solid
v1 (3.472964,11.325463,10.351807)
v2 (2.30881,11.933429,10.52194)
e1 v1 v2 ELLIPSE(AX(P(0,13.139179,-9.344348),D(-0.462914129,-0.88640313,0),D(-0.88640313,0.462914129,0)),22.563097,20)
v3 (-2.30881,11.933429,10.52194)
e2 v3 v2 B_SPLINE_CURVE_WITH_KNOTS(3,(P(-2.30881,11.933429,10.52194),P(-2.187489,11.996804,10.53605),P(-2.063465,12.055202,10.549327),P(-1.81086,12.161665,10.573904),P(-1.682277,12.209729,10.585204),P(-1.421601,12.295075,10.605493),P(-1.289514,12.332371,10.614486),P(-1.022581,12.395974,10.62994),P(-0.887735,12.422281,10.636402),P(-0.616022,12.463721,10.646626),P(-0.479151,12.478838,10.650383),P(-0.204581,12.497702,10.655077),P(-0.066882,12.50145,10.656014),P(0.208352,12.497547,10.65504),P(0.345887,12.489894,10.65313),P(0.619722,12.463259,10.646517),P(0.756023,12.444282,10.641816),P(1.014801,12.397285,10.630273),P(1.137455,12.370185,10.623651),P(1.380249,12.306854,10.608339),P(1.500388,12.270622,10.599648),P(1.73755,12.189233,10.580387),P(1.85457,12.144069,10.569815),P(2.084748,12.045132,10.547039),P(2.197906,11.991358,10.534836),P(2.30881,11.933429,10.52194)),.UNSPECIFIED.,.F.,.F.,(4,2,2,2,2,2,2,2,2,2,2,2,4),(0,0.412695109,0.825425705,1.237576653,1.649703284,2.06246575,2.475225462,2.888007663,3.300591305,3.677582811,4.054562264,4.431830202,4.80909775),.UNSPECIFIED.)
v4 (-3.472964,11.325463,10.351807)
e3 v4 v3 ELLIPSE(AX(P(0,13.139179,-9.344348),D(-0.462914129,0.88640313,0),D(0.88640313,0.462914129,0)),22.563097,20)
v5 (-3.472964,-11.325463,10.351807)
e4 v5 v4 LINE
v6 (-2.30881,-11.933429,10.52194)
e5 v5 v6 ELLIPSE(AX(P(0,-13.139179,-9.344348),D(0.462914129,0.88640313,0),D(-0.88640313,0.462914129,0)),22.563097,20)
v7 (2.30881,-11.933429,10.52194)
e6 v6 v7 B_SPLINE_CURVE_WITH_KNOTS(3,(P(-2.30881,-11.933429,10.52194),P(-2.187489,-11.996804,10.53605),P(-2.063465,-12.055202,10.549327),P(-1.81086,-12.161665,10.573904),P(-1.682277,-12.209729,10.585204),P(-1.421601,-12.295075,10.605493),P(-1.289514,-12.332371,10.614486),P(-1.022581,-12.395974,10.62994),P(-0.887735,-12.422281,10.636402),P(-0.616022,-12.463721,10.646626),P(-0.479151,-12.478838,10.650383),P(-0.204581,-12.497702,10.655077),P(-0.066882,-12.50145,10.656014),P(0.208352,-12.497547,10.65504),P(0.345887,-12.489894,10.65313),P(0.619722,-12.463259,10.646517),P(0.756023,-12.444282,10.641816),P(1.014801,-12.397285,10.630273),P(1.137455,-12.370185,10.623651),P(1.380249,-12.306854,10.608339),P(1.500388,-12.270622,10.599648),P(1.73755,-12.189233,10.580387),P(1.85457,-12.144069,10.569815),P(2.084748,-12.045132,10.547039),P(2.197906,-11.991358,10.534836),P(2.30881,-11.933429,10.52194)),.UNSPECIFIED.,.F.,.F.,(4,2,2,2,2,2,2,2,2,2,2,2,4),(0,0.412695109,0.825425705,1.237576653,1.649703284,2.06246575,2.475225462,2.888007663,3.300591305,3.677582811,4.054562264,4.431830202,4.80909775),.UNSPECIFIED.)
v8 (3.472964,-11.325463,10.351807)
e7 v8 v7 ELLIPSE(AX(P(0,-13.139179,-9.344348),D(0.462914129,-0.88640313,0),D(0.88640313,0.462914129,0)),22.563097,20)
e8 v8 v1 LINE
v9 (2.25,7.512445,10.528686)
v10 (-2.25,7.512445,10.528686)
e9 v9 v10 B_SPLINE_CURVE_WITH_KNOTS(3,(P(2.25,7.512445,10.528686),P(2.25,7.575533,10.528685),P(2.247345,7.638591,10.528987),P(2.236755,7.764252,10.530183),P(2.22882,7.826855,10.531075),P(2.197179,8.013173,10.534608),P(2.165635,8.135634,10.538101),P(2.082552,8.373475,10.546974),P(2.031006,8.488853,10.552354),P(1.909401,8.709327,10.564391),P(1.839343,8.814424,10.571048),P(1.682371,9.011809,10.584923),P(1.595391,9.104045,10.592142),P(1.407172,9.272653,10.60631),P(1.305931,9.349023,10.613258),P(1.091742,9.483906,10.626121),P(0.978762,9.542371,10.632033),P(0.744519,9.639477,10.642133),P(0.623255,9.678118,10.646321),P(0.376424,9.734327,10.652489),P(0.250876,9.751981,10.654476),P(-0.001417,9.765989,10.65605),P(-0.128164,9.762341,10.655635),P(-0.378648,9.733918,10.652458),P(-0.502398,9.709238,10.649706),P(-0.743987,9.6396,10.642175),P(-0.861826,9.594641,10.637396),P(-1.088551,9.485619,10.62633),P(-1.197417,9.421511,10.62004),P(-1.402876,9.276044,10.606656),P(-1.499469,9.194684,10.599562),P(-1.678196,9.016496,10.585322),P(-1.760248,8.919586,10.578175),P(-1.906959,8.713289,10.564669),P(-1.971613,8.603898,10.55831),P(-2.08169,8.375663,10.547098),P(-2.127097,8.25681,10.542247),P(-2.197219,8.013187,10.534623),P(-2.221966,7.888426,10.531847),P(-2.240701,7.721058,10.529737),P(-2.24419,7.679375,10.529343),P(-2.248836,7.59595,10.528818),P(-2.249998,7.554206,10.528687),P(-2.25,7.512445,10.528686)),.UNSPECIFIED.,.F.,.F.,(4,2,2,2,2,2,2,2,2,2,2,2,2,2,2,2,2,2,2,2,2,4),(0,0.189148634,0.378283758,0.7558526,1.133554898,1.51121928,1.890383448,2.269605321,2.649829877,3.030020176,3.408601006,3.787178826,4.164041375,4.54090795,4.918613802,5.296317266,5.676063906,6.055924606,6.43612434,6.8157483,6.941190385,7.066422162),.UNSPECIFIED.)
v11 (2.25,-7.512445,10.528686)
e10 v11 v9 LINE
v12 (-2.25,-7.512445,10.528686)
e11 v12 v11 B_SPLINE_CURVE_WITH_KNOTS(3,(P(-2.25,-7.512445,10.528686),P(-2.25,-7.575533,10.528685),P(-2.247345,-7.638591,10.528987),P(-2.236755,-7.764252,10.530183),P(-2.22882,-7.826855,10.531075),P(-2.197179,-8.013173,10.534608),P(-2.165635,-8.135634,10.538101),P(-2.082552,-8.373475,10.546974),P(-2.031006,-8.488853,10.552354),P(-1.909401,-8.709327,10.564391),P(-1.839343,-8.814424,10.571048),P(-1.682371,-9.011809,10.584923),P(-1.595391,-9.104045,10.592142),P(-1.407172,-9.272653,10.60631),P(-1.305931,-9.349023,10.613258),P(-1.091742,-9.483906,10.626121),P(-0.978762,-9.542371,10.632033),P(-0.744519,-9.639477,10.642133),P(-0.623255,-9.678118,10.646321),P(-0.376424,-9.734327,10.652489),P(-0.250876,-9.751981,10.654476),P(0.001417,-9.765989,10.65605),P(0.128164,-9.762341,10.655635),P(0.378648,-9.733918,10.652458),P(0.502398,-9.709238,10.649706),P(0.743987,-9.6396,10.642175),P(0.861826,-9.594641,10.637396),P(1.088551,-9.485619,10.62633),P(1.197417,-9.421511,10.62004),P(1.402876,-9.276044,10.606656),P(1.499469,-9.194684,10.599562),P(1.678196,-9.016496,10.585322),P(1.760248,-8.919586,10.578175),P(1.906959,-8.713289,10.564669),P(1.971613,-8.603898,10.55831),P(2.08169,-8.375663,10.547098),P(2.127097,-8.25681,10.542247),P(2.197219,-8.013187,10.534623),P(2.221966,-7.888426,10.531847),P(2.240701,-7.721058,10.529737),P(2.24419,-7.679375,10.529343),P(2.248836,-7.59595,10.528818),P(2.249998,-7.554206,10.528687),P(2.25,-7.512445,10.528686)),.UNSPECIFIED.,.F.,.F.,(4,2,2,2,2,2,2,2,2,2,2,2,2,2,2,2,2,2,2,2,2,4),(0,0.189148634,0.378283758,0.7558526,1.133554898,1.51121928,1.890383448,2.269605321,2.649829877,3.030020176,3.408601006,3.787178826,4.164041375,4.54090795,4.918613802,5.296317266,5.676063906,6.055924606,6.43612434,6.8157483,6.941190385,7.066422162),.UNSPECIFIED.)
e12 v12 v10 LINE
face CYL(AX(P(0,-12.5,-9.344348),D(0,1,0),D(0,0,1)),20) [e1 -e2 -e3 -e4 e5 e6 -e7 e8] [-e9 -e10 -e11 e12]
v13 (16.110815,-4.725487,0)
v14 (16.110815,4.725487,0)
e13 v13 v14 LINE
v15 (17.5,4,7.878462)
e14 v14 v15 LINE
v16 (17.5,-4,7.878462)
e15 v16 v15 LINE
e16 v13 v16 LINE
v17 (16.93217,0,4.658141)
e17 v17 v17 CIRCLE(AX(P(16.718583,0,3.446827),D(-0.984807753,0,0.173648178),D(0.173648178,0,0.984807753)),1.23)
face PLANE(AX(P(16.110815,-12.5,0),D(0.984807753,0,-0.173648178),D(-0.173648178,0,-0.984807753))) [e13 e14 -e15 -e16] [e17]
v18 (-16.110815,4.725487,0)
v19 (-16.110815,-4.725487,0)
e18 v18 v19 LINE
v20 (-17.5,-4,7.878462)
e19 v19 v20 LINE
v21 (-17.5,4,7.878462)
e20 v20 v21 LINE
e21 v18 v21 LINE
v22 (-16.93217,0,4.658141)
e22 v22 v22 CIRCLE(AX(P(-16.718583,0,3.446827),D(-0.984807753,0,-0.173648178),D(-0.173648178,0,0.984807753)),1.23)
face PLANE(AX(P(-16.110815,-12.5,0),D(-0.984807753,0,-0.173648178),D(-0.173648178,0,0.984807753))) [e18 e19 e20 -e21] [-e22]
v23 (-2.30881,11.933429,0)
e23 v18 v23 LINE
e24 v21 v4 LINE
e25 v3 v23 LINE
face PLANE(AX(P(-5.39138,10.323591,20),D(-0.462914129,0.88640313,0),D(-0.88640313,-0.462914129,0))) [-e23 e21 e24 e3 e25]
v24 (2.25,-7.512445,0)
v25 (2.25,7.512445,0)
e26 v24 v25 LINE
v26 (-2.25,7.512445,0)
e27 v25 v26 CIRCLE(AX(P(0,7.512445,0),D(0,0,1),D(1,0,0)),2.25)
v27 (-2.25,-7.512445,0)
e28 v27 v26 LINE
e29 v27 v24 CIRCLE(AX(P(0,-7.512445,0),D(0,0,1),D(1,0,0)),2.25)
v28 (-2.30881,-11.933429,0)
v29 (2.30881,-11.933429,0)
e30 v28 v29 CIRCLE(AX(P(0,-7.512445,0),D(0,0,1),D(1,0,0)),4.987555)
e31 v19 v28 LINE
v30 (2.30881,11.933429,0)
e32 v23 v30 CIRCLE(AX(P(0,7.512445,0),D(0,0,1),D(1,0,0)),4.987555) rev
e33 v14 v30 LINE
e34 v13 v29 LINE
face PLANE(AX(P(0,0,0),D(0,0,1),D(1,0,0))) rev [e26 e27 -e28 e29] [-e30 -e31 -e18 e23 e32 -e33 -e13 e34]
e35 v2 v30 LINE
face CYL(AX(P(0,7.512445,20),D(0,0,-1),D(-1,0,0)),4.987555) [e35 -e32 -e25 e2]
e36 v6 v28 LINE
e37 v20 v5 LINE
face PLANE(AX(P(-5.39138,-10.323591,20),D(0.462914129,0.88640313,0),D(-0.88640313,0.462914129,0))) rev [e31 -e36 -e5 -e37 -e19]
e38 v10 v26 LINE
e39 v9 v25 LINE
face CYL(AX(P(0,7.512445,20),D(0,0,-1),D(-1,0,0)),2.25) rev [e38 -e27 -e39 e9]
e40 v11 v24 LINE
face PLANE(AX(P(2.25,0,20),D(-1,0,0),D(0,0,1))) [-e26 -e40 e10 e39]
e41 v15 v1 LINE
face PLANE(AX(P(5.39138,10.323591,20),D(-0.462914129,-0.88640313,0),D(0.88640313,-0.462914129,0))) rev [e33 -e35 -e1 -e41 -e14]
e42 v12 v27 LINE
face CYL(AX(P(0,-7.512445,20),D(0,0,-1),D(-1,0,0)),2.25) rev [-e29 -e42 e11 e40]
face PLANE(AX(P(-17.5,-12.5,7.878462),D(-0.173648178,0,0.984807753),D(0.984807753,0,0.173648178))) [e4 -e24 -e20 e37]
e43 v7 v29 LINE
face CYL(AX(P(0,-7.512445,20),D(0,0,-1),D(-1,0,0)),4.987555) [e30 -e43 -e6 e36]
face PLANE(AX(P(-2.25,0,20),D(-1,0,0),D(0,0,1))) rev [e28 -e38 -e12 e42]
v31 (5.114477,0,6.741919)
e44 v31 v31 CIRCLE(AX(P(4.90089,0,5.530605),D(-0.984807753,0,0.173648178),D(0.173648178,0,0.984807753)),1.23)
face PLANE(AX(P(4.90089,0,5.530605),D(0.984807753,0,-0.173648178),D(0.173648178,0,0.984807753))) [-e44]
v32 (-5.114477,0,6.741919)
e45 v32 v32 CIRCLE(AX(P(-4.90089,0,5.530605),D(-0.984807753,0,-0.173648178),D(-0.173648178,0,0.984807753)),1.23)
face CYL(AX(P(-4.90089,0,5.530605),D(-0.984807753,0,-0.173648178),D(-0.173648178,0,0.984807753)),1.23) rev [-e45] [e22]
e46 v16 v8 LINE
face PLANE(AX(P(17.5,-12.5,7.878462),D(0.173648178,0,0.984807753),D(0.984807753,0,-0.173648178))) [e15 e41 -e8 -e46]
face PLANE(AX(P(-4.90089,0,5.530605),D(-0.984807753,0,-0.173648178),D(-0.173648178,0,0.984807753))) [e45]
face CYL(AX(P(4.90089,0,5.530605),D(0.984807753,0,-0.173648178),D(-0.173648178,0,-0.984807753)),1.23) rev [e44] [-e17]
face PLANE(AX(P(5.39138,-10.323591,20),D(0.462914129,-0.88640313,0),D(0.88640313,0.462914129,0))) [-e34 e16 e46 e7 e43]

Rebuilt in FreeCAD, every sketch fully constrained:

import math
import FreeCAD as App
import Part
import Sketcher
from FreeCAD import Vector
Q = App.Units.Quantity


def add_polygon(sketch, points):
    """Adds a closed chain of lines whose ends are joined by coincident constraints."""
    first, n = sketch.GeometryCount, len(points)
    for a, b in zip(points, points[1:] + points[:1]):
        sketch.addGeometry(Part.LineSegment(App.Vector(*a, 0), App.Vector(*b, 0)), False)
    for i in range(n):
        sketch.addConstraint(Sketcher.Constraint("Coincident", first + i, 2, first + (i + 1) % n, 1))

doc = App.newDocument("Part")
params = doc.addObject("Spreadsheet::Sheet", "Params")
for row, (alias, value) in enumerate([
    ("sketch1_height", "8 mm"),
    ("sketch1_radius", "2.25 mm"),
    ("pad1_length", "20 mm"),
    ("sketch2_radius", "20 mm"),
    ("sketch2_length", "8 mm"),
    ("sketch3_diameter", "2.46 mm"),
    ("pocket2_length", "12 mm"),
], start=1):
    params.set(f"A{row}", alias)
    params.set(f"B{row}", "=" + value)
    params.setAlias(f"B{row}", alias)

body = doc.addObject("PartDesign::Body", "Body")

# Sketch on XY plane
sketch1 = body.newObject("Sketcher::SketchObject", "Sketch")
sketch1.AttachmentSupport = (doc.getObject("XY_Plane"), [""])
sketch1.MapMode = "FlatFace"
sketch1.addGeometry(Part.LineSegment(Vector(-2.30881, 11.933429, 0), Vector(-17.5, 4, 0)), False)
sketch1.addGeometry(Part.LineSegment(Vector(-17.5, 4, 0), Vector(-17.5, -4, 0)), False)
sketch1.addGeometry(Part.LineSegment(Vector(-17.5, -4, 0), Vector(-2.30881, -11.933429, 0)), False)
sketch1.addGeometry(Part.ArcOfCircle(Part.Circle(Vector(0, -7.512445, 0), Vector(0, 0, 1), 4.987555), math.radians(-117.575311), math.radians(-62.424689)), False)
sketch1.addGeometry(Part.LineSegment(Vector(2.30881, -11.933429, 0), Vector(17.5, -4, 0)), False)
sketch1.addGeometry(Part.LineSegment(Vector(17.5, -4, 0), Vector(17.5, 4, 0)), False)
sketch1.addGeometry(Part.LineSegment(Vector(17.5, 4, 0), Vector(2.30881, 11.933429, 0)), False)
sketch1.addGeometry(Part.ArcOfCircle(Part.Circle(Vector(0, 7.512445, 0), Vector(0, 0, 1), 4.987555), math.radians(62.424689), math.radians(117.575311)), False)
sketch1.addGeometry(Part.LineSegment(Vector(-2.25, -7.512445, 0), Vector(-2.25, 7.512445, 0)), False)
sketch1.addGeometry(Part.ArcOfCircle(Part.Circle(Vector(0, 7.512445, 0), Vector(0, 0, 1), 2.25), math.radians(0), math.radians(180)), False)
sketch1.addGeometry(Part.LineSegment(Vector(2.25, 7.512445, 0), Vector(2.25, -7.512445, 0)), False)
sketch1.addGeometry(Part.ArcOfCircle(Part.Circle(Vector(0, -7.512445, 0), Vector(0, 0, 1), 2.25), math.radians(180), math.radians(360)), False)
sketch1.addConstraint(Sketcher.Constraint("Coincident", 0, 2, 1, 1))
sketch1.addConstraint(Sketcher.Constraint("Coincident", 1, 2, 2, 1))
sketch1.addConstraint(Sketcher.Constraint("Tangent", 2, 2, 3, 1))
sketch1.addConstraint(Sketcher.Constraint("Tangent", 3, 2, 4, 1))
sketch1.addConstraint(Sketcher.Constraint("Coincident", 4, 2, 5, 1))
sketch1.addConstraint(Sketcher.Constraint("Coincident", 5, 2, 6, 1))
sketch1.addConstraint(Sketcher.Constraint("Tangent", 6, 2, 7, 1))
sketch1.addConstraint(Sketcher.Constraint("Tangent", 7, 2, 0, 1))
sketch1.addConstraint(Sketcher.Constraint("Tangent", 8, 2, 9, 2))
sketch1.addConstraint(Sketcher.Constraint("Tangent", 9, 1, 10, 1))
sketch1.addConstraint(Sketcher.Constraint("Tangent", 10, 2, 11, 2))
sketch1.addConstraint(Sketcher.Constraint("Tangent", 11, 1, 8, 1))
sketch1.addConstraint(Sketcher.Constraint("Vertical", 1))
sketch1.addConstraint(Sketcher.Constraint("Vertical", 5))
sketch1.addConstraint(Sketcher.Constraint("Vertical", 8))
sketch1.addConstraint(Sketcher.Constraint("Vertical", 10))
sketch1.addConstraint(Sketcher.Constraint("Coincident", 9, 3, 7, 3))
sketch1.addConstraint(Sketcher.Constraint("Coincident", 11, 3, 3, 3))
sketch1.addConstraint(Sketcher.Constraint("Equal", 3, 7))
sketch1.addConstraint(Sketcher.Constraint("Symmetric", 3, 3, 7, 3, -1, 1))
sketch1.addConstraint(Sketcher.Constraint("Symmetric", 0, 2, 4, 2, -1, 1))
sketch1.addConstraint(Sketcher.Constraint("Parallel", 2, 6))
sketch1.addConstraint(Sketcher.Constraint("Horizontal", 2, 2, 3, 2))
sketch1.addConstraint(Sketcher.Constraint("DistanceY", 1, 2, 1, 1, Q("8 mm")))
sketch1.addConstraint(Sketcher.Constraint("Radius", 9, Q("2.25 mm")))
sketch1.addConstraint(Sketcher.Constraint("DistanceX", 0, 2, -1, 1, Q("17.5 mm")))
sketch1.addConstraint(Sketcher.Constraint("Radius", 3, Q("4.987555 mm")))
sketch1.addConstraint(Sketcher.Constraint("DistanceY", 8, 1, 8, 2, Q("15.02489 mm")))
sketch1.setExpression("Constraints[23]", "Params.sketch1_height")
sketch1.setExpression("Constraints[24]", "Params.sketch1_radius")
pad1 = body.newObject("PartDesign::Pad", "Pad")
pad1.Profile = sketch1
pad1.setExpression("Length", "Params.pad1_length")

# Sketch on XZ plane
sketch2 = body.newObject("Sketcher::SketchObject", "Sketch001")
sketch2.AttachmentSupport = (doc.getObject("XZ_Plane"), [""])
sketch2.MapMode = "FlatFace"
add_polygon(sketch2, [(-23.243, -5.743), (-23.243, 25.743), (23.243, 25.743), (23.243, -5.743)])  # lines 0-3
sketch2.addGeometry(Part.LineSegment(Vector(-17.5, 7.878462, 0), Vector(-16.110815, 0, 0)), False)  # 4
sketch2.addGeometry(Part.LineSegment(Vector(-16.110815, 0, 0), Vector(16.110815, 0, 0)), False)  # 5
sketch2.addGeometry(Part.LineSegment(Vector(16.110815, 0, 0), Vector(17.5, 7.878462, 0)), False)  # 6
sketch2.addGeometry(Part.LineSegment(Vector(17.5, 7.878462, 0), Vector(3.472964, 10.351807, 0)), False)  # 7
sketch2.addGeometry(Part.ArcOfCircle(Part.Circle(Vector(0, -9.344348, 0), Vector(0, 0, 1), 20), math.radians(80), math.radians(100)), False)  # 8
sketch2.addGeometry(Part.LineSegment(Vector(-3.472964, 10.351807, 0), Vector(-17.5, 7.878462, 0)), False)  # 9
sketch2.addConstraint(Sketcher.Constraint("Coincident", 4, 2, 5, 1))
sketch2.addConstraint(Sketcher.Constraint("Coincident", 5, 2, 6, 1))
sketch2.addConstraint(Sketcher.Constraint("Coincident", 6, 2, 7, 1))
sketch2.addConstraint(Sketcher.Constraint("Tangent", 7, 2, 8, 1))
sketch2.addConstraint(Sketcher.Constraint("Tangent", 8, 2, 9, 1))
sketch2.addConstraint(Sketcher.Constraint("Coincident", 9, 2, 4, 1))
sketch2.addConstraint(Sketcher.Constraint("Vertical", 0))
sketch2.addConstraint(Sketcher.Constraint("Horizontal", 1))
sketch2.addConstraint(Sketcher.Constraint("Vertical", 2))
sketch2.addConstraint(Sketcher.Constraint("Horizontal", 3))
sketch2.addConstraint(Sketcher.Constraint("Horizontal", 5))
sketch2.addConstraint(Sketcher.Constraint("Symmetric", 4, 2, 5, 2, -1, 1))
sketch2.addConstraint(Sketcher.Constraint("Symmetric", 7, 2, 8, 2, -2))
sketch2.addConstraint(Sketcher.Constraint("Perpendicular", 6, 7))
sketch2.addConstraint(Sketcher.Constraint("Perpendicular", 4, 9))
sketch2.addConstraint(Sketcher.Constraint("Radius", 8, Q("20 mm")))
sketch2.addConstraint(Sketcher.Constraint("Angle", 4, Q("-80 deg")))
sketch2.addConstraint(Sketcher.Constraint("Distance", 4, Q("8 mm")))
sketch2.addConstraint(Sketcher.Constraint("DistanceX", -1, 1, 6, 2, Q("17.5 mm")))
sketch2.addConstraint(Sketcher.Constraint("DistanceX", 1, 1, 1, 2, Q("46.486 mm")))
sketch2.addConstraint(Sketcher.Constraint("DistanceY", 0, 1, 0, 2, Q("31.486 mm")))
sketch2.addConstraint(Sketcher.Constraint("DistanceX", 0, 2, -1, 1, Q("23.243 mm")))
sketch2.addConstraint(Sketcher.Constraint("DistanceY", -1, 1, 0, 2, Q("25.743 mm")))
sketch2.setExpression("Constraints[19]", "Params.sketch2_radius")
sketch2.setExpression("Constraints[21]", "Params.sketch2_length")
pocket1 = body.newObject("PartDesign::Pocket", "Pocket")
pocket1.Profile = sketch2
pocket1.Type = "ThroughAll"
pocket1.Midplane = True

# Sketch on an angled plane
sketch3 = body.newObject("Sketcher::SketchObject", "Sketch002")
sketch3.Placement = App.Placement(Vector(-16.983255, 0, 4.947855), App.Rotation(Vector(-0.173648178, 0, 0.984807753), Vector(0, 1, 0), Vector(-0.984807753, 0, -0.173648178), "ZXY"))
sketch3.addGeometry(Part.Circle(Vector(-1.524183, 0, 0), Vector(0, 0, 1), 1.23), False)
sketch3.addConstraint(Sketcher.Constraint("PointOnObject", 0, 3, -1))
sketch3.addConstraint(Sketcher.Constraint("Diameter", 0, Q("2.46 mm")))
sketch3.addConstraint(Sketcher.Constraint("DistanceX", 0, 3, -1, 1, Q("1.524183 mm")))
sketch3.setExpression("Constraints[1]", "Params.sketch3_diameter")
pocket2 = body.newObject("PartDesign::Pocket", "Pocket001")
pocket2.Profile = sketch3
pocket2.setExpression("Length", "Params.pocket2_length")
doc.recompute()

mirrored = body.newObject("PartDesign::Mirrored", "Mirrored")
mirrored.Originals = [pocket2]
mirrored.MirrorPlane = (doc.getObject("YZ_Plane"), [""])
body.Tip = mirrored

doc.recompute()
